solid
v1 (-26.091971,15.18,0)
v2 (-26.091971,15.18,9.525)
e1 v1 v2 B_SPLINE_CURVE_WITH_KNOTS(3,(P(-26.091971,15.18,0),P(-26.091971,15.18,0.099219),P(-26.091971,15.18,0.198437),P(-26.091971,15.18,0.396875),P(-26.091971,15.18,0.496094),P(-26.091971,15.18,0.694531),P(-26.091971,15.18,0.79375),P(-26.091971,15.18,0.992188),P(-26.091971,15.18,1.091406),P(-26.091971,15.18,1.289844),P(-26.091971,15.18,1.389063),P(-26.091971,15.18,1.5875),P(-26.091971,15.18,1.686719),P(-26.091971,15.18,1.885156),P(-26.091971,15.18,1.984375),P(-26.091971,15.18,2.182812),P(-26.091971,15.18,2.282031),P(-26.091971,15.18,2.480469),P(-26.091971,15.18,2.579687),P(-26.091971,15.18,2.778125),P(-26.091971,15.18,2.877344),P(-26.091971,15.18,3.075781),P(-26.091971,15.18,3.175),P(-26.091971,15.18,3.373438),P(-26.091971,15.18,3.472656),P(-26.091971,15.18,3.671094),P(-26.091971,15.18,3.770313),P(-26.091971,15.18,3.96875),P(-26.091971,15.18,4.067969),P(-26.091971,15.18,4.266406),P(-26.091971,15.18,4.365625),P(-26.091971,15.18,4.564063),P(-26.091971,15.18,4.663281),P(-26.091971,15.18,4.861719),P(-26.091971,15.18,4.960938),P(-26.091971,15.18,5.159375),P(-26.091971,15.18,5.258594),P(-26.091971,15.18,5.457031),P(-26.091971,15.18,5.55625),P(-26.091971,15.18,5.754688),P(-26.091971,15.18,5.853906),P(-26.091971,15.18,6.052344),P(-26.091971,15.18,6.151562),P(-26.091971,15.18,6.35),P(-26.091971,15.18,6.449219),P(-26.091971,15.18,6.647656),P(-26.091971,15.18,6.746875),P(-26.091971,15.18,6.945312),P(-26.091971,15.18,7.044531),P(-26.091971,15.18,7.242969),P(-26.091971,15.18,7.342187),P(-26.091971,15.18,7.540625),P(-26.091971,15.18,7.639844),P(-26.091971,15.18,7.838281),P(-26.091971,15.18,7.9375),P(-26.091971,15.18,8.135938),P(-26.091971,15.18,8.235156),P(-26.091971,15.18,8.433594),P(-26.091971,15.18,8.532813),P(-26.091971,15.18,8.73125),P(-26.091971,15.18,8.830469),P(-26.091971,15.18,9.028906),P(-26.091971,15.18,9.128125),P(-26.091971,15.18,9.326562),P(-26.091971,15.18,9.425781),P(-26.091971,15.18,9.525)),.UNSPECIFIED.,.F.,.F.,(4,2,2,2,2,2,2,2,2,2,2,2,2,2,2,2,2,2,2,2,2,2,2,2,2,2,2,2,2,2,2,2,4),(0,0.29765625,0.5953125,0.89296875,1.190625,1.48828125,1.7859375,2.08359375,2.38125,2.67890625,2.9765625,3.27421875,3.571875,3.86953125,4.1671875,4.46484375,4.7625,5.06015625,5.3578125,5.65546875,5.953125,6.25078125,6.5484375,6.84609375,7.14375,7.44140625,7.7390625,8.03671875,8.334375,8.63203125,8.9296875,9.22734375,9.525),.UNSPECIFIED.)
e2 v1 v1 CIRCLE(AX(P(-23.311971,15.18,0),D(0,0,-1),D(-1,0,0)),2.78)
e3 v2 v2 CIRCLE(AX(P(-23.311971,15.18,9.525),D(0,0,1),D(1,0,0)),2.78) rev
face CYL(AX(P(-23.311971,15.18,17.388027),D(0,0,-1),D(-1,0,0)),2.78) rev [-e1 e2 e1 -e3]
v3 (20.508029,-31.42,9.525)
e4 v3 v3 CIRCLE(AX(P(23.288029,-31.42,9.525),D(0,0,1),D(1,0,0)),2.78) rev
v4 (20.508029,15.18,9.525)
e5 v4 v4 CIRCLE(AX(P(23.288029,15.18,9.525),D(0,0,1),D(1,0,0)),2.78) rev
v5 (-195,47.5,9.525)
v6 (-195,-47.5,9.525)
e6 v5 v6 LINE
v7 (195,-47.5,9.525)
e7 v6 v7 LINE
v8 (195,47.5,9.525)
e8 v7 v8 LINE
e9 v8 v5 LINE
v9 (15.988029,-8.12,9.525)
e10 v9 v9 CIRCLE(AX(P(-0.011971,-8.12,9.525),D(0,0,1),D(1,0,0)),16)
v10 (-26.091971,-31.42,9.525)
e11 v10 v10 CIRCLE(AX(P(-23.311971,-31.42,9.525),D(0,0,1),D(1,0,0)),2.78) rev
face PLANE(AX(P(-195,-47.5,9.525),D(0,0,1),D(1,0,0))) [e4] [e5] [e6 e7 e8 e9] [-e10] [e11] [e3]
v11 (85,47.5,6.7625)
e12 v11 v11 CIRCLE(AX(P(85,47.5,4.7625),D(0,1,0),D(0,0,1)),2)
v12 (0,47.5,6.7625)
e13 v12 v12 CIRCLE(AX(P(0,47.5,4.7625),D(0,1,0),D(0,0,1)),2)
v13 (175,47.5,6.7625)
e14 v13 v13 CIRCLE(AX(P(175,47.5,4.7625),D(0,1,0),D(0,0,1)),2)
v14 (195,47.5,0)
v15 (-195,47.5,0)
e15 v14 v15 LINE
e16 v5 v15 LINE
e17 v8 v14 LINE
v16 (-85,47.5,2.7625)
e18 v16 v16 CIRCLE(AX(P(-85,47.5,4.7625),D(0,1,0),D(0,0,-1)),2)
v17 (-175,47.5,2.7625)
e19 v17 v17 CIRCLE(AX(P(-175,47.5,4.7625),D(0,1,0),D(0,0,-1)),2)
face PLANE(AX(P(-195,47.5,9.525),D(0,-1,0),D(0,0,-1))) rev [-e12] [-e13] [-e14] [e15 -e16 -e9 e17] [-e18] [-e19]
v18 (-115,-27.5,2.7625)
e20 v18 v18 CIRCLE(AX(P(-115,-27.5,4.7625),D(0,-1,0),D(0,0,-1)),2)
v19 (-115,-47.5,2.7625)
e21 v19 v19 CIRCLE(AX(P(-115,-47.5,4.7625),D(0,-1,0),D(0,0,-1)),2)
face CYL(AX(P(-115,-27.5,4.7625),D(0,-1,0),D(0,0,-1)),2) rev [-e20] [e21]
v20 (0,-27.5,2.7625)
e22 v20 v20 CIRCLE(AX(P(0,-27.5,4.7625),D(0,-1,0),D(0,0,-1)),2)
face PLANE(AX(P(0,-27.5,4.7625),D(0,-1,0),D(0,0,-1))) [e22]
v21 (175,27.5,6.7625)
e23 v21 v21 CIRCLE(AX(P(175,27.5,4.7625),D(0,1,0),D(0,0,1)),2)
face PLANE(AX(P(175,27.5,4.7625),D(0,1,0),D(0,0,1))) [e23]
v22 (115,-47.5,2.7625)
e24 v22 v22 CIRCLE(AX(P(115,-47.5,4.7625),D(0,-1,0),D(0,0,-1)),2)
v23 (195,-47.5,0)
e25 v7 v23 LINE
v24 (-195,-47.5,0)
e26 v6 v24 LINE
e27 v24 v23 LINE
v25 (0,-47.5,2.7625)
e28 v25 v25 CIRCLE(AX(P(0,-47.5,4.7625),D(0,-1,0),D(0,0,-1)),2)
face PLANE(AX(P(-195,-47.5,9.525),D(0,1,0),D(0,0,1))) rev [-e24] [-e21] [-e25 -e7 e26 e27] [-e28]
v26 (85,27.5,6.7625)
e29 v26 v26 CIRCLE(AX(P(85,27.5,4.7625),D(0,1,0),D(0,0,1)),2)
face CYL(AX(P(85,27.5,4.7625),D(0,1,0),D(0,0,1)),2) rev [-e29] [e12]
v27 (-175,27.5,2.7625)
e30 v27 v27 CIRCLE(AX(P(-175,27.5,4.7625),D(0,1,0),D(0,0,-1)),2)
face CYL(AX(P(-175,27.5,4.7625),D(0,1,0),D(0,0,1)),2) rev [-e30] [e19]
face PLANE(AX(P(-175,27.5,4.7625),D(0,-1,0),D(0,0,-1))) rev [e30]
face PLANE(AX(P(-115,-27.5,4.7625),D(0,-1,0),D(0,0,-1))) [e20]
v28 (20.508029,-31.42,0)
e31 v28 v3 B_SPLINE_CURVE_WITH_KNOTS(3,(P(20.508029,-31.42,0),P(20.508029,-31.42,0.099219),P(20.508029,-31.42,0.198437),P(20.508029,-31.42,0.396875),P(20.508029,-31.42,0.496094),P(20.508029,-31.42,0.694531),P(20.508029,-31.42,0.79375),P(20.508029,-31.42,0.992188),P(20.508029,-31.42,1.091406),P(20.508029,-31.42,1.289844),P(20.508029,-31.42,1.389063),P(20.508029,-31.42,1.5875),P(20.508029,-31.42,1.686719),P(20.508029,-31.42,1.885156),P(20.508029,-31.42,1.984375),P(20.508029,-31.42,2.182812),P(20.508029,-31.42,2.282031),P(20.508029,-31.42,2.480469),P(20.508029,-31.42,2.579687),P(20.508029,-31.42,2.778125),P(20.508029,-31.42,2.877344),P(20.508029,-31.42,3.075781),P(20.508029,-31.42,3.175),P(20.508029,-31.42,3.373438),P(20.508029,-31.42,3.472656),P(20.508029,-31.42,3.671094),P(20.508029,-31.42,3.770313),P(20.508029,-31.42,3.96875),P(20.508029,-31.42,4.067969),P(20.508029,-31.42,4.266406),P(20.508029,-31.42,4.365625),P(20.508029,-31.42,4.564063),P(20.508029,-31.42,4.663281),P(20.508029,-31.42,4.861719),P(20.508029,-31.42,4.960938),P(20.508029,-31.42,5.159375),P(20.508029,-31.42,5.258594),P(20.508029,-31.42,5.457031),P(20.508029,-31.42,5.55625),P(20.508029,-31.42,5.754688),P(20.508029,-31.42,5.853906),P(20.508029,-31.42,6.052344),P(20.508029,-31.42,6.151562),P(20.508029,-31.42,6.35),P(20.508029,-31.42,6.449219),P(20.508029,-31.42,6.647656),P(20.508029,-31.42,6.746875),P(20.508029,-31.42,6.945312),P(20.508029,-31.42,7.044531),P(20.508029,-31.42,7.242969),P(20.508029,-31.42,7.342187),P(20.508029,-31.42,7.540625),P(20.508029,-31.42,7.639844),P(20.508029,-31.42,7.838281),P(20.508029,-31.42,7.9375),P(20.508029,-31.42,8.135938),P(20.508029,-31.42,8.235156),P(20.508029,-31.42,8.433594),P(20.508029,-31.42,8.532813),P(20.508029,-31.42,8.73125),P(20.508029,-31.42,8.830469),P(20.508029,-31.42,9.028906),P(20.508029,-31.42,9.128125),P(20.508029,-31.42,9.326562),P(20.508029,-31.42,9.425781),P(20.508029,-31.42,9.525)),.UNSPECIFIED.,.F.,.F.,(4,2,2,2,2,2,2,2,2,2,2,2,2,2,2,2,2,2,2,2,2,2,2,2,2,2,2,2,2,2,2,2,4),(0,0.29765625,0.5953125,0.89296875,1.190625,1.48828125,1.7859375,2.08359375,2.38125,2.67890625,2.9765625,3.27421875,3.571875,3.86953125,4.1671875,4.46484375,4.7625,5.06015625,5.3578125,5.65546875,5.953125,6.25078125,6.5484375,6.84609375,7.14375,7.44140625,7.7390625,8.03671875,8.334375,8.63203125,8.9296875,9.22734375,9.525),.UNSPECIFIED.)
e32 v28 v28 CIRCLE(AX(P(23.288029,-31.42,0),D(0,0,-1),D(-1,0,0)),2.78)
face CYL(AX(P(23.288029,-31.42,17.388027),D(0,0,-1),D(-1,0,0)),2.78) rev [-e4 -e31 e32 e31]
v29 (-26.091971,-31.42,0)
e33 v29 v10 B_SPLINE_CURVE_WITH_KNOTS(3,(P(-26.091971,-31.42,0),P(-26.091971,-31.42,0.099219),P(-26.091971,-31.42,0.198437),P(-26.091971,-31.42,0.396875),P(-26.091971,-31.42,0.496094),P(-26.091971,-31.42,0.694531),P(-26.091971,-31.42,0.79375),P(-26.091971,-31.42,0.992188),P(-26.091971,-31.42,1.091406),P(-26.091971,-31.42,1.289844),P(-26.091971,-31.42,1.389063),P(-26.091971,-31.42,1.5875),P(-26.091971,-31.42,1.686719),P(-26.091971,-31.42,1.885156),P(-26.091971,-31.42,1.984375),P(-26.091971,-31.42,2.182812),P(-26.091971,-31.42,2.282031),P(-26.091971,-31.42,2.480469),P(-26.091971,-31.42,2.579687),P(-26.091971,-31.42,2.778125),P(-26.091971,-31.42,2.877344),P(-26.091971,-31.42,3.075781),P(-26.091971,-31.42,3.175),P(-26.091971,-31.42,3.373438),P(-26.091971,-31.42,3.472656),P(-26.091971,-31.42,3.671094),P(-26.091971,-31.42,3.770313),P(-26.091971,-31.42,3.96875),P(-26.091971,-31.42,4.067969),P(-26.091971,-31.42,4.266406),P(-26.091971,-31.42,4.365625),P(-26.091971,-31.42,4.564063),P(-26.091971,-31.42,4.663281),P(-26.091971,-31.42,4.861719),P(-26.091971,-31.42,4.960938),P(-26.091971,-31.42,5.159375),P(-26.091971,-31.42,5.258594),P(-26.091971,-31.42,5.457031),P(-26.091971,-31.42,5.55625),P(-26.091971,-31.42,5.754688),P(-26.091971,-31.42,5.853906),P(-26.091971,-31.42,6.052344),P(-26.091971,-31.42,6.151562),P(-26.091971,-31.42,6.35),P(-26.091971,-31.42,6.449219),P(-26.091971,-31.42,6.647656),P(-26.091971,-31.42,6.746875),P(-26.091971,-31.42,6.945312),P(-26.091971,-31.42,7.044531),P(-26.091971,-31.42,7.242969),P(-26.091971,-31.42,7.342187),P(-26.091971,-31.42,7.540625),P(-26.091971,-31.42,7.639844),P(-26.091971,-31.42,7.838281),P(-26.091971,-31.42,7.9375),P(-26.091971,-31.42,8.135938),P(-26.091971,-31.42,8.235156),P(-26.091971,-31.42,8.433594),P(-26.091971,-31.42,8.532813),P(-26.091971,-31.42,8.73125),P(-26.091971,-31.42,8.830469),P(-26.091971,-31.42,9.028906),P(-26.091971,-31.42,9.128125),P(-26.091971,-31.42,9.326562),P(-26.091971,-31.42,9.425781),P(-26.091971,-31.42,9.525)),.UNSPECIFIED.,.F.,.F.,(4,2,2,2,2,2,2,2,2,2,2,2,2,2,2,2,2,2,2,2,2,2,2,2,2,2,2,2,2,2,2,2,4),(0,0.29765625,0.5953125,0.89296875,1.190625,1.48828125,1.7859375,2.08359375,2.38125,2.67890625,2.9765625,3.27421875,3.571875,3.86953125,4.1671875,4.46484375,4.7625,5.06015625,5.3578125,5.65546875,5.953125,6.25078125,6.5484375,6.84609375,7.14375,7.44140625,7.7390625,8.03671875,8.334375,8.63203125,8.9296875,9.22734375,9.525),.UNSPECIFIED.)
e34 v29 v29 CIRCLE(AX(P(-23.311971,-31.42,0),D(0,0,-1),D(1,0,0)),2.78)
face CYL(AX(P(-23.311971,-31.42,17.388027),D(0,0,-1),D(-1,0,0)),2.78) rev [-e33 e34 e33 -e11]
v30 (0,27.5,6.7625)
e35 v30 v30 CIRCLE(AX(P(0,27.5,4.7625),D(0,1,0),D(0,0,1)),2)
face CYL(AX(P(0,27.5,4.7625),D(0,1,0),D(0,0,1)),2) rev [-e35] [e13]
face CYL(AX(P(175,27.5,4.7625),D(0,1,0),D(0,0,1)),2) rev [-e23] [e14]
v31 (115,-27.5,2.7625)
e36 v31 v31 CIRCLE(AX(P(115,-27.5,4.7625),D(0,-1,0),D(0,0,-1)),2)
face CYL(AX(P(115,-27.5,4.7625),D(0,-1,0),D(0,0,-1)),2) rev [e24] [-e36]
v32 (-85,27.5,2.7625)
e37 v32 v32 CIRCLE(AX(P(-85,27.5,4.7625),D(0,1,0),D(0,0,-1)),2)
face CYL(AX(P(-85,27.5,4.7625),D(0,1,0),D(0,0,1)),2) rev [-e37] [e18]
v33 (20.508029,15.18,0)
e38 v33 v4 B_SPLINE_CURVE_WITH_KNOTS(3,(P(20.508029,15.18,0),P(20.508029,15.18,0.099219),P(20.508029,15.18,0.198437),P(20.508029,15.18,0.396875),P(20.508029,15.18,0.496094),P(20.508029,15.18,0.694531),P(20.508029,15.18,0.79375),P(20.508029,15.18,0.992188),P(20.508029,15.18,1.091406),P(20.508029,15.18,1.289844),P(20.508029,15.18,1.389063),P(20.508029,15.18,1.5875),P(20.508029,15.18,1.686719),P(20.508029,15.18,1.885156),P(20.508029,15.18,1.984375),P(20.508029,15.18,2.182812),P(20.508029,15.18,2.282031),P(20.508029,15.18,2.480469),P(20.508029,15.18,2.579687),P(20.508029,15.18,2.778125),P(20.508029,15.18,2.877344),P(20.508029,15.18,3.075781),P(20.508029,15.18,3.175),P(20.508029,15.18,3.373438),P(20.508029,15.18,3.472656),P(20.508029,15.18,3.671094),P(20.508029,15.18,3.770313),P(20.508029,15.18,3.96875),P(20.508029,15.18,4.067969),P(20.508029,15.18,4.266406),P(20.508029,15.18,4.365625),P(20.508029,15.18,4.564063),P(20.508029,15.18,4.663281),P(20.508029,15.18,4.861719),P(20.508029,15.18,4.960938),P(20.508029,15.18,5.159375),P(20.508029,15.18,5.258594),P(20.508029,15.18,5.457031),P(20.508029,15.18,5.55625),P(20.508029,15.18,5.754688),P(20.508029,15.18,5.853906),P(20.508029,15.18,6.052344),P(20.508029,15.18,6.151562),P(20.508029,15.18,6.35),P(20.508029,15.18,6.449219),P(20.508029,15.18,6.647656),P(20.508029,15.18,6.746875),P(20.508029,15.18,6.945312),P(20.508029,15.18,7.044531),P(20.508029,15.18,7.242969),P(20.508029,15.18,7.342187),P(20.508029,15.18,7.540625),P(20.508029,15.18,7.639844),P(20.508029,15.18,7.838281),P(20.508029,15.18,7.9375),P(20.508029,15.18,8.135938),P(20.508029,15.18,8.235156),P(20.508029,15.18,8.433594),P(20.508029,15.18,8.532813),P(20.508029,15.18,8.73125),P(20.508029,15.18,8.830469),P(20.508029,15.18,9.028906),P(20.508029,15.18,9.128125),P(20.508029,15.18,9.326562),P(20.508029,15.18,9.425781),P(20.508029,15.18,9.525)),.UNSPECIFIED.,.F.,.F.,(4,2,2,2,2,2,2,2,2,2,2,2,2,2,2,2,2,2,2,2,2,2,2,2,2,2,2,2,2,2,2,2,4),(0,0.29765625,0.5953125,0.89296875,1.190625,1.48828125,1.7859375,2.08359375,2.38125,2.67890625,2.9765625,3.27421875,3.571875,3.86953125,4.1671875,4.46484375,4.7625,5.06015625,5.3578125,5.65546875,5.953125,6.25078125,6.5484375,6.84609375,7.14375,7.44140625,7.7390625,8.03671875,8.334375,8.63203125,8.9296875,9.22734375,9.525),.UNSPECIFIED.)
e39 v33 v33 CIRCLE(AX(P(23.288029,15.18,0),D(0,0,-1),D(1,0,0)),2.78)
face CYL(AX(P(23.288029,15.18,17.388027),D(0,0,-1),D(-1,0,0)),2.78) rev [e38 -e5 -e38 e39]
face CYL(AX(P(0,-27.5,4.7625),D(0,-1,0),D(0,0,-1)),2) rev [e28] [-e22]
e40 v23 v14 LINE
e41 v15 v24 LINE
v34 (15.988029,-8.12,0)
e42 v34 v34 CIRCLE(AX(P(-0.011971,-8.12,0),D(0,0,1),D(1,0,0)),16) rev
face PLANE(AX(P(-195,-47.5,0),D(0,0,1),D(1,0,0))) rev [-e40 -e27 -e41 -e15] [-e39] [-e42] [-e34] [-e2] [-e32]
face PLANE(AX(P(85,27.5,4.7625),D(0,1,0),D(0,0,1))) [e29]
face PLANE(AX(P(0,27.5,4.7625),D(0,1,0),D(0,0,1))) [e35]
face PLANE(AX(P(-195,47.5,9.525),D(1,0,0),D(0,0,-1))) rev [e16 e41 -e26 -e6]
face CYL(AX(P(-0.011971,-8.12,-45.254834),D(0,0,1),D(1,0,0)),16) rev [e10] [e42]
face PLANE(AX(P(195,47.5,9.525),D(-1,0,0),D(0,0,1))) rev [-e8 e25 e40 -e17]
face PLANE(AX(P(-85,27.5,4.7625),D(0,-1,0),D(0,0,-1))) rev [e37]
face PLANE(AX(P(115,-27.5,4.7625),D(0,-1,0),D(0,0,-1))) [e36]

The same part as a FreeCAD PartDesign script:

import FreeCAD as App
import Part
import Sketcher
from FreeCAD import Vector


def add_polygon(sketch, points):
    """Adds a closed chain of lines whose ends are joined by coincident constraints."""
    first, n = sketch.GeometryCount, len(points)
    for a, b in zip(points, points[1:] + points[:1]):
        sketch.addGeometry(Part.LineSegment(App.Vector(*a, 0), App.Vector(*b, 0)), False)
    for i in range(n):
        sketch.addConstraint(Sketcher.Constraint("Coincident", first + i, 2, first + (i + 1) % n, 1))

doc = App.newDocument("Part")
body = doc.addObject("PartDesign::Body", "Body")

sketch1 = body.newObject("Sketcher::SketchObject", "Sketch")
sketch1.AttachmentSupport = (doc.getObject("XY_Plane"), [""])
sketch1.MapMode = "FlatFace"
add_polygon(sketch1, [(-195, 48), (-195, -48), (195, -48), (195, 48)])
sketch1.addConstraint(Sketcher.Constraint("Vertical", 0))
sketch1.addConstraint(Sketcher.Constraint("Horizontal", 1))
sketch1.addConstraint(Sketcher.Constraint("Vertical", 2))
sketch1.addConstraint(Sketcher.Constraint("Horizontal", 3))
sketch1.addConstraint(Sketcher.Constraint("Symmetric", 0, 2, 2, 2, -1, 1))
sketch1.addConstraint(Sketcher.Constraint("DistanceX", 1, 1, 1, 2, 390.0))
sketch1.addConstraint(Sketcher.Constraint("DistanceY", 0, 2, 0, 1, 95.0))
pad1 = body.newObject("PartDesign::Pad", "Pad")
pad1.Profile = sketch1
pad1.Length = 9.525

sketch2 = body.newObject("Sketcher::SketchObject", "Sketch001")
sketch2.AttachmentSupport = (doc.getObject("XY_Plane"), [""])
sketch2.MapMode = "FlatFace"
sketch2.AttachmentOffset = App.Placement(Vector(0, 0, 9.525), App.Rotation())
sketch2.addGeometry(Part.Circle(Vector(0, -8, 0), Vector(0, 0, 1), 16), False)
sketch2.addConstraint(Sketcher.Constraint("Diameter", 0, 32.0))
sketch2.addConstraint(Sketcher.Constraint("DistanceY", 0, 3, -1, 1, 8.12))
sketch2.addConstraint(Sketcher.Constraint("DistanceX", 0, 3, -1, 1, 0.011971))
pocket1 = body.newObject("PartDesign::Pocket", "Pocket")
pocket1.Profile = sketch2
pocket1.Length = 9.525

sketch3 = body.newObject("Sketcher::SketchObject", "Sketch002")
sketch3.AttachmentSupport = (doc.getObject("XY_Plane"), [""])
sketch3.MapMode = "FlatFace"
sketch3.addGeometry(Part.Circle(Vector(-23.3, -31.4, 0), Vector(0, 0, 1), 2.8), False)
sketch3.addGeometry(Part.Circle(Vector(23.3, -31.4, 0), Vector(0, 0, 1), 2.8), False)
sketch3.addGeometry(Part.Circle(Vector(-23.3, 15.2, 0), Vector(0, 0, 1), 2.8), False)
sketch3.addGeometry(Part.Circle(Vector(23.3, 15.2, 0), Vector(0, 0, 1), 2.8), False)
sketch3.addConstraint(Sketcher.Constraint("Equal", 0, 1))
sketch3.addConstraint(Sketcher.Constraint("Equal", 1, 2))
sketch3.addConstraint(Sketcher.Constraint("Equal", 2, 3))
sketch3.addConstraint(Sketcher.Constraint("Horizontal", 0, 3, 1, 3))
sketch3.addConstraint(Sketcher.Constraint("Horizontal", 2, 3, 3, 3))
sketch3.addConstraint(Sketcher.Constraint("Vertical", 0, 3, 2, 3))
sketch3.addConstraint(Sketcher.Constraint("Vertical", 1, 3, 3, 3))
sketch3.addConstraint(Sketcher.Constraint("Diameter", 0, 5.56))
sketch3.addConstraint(Sketcher.Constraint("DistanceX", 0, 3, 1, 3, 46.6))
sketch3.addConstraint(Sketcher.Constraint("DistanceY", 0, 3, 2, 3, 46.6))
sketch3.addConstraint(Sketcher.Constraint("DistanceY", 0, 3, -1, 1, 31.42))
sketch3.addConstraint(Sketcher.Constraint("DistanceX", 0, 3, -1, 1, 23.311971))
pocket2 = body.newObject("PartDesign::Pocket", "Pocket001")
pocket2.Profile = sketch3
pocket2.Length = 9.525
pocket2.Reversed = True

sketch4 = body.newObject("Sketcher::SketchObject", "Sketch003")
sketch4.AttachmentSupport = (doc.getObject("XZ_Plane"), [""])
sketch4.MapMode = "FlatFace"
sketch4.AttachmentOffset = App.Placement(Vector(0, 0, -47.5), App.Rotation())
sketch4.addGeometry(Part.Circle(Vector(175, 4.8, 0), Vector(0, 0, 1), 2), False)
sketch4.addGeometry(Part.Circle(Vector(85, 4.8, 0), Vector(0, 0, 1), 2), False)
sketch4.addGeometry(Part.Circle(Vector(0, 4.8, 0), Vector(0, 0, 1), 2), False)
sketch4.addGeometry(Part.Circle(Vector(-175, 4.8, 0), Vector(0, 0, 1), 2), False)
sketch4.addGeometry(Part.Circle(Vector(-85, 4.8, 0), Vector(0, 0, 1), 2), False)
sketch4.addConstraint(Sketcher.Constraint("Equal", 0, 1))
sketch4.addConstraint(Sketcher.Constraint("Equal", 1, 2))
sketch4.addConstraint(Sketcher.Constraint("Equal", 2, 3))
sketch4.addConstraint(Sketcher.Constraint("Equal", 3, 4))
sketch4.addConstraint(Sketcher.Constraint("Symmetric", 0, 3, 3, 3, -2))
sketch4.addConstraint(Sketcher.Constraint("Symmetric", 1, 3, 4, 3, -2))
sketch4.addConstraint(Sketcher.Constraint("PointOnObject", 2, 3, -2))
sketch4.addConstraint(Sketcher.Constraint("Horizontal", 0, 3, 1, 3))
sketch4.addConstraint(Sketcher.Constraint("Horizontal", 1, 3, 2, 3))
sketch4.addConstraint(Sketcher.Constraint("Diameter", 0, 4.0))
sketch4.addConstraint(Sketcher.Constraint("DistanceX", -1, 1, 0, 3, 175.0))
sketch4.addConstraint(Sketcher.Constraint("DistanceX", -1, 1, 1, 3, 85.0))
sketch4.addConstraint(Sketcher.Constraint("DistanceY", -1, 1, 0, 3, 4.7625))
pocket3 = body.newObject("PartDesign::Pocket", "Pocket002")
pocket3.Profile = sketch4
pocket3.Length = 20
pocket3.Reversed = True

sketch5 = body.newObject("Sketcher::SketchObject", "Sketch004")
sketch5.AttachmentSupport = (doc.getObject("XZ_Plane"), [""])
sketch5.MapMode = "FlatFace"
sketch5.AttachmentOffset = App.Placement(Vector(0, 0, 27.5), App.Rotation())
sketch5.addGeometry(Part.Circle(Vector(-115, 4.8, 0), Vector(0, 0, 1), 2), False)
sketch5.addGeometry(Part.Circle(Vector(0, 4.8, 0), Vector(0, 0, 1), 2), False)
sketch5.addGeometry(Part.Circle(Vector(115, 4.8, 0), Vector(0, 0, 1), 2), False)
sketch5.addConstraint(Sketcher.Constraint("Equal", 0, 1))
sketch5.addConstraint(Sketcher.Constraint("Equal", 1, 2))
sketch5.addConstraint(Sketcher.Constraint("Symmetric", 0, 3, 2, 3, -2))
sketch5.addConstraint(Sketcher.Constraint("PointOnObject", 1, 3, -2))
sketch5.addConstraint(Sketcher.Constraint("Horizontal", 0, 3, 1, 3))
sketch5.addConstraint(Sketcher.Constraint("Diameter", 0, 4.0))
sketch5.addConstraint(Sketcher.Constraint("DistanceX", 0, 3, -1, 1, 115.0))
sketch5.addConstraint(Sketcher.Constraint("DistanceY", -1, 1, 0, 3, 4.7625))
pocket4 = body.newObject("PartDesign::Pocket", "Pocket003")
pocket4.Profile = sketch5
pocket4.Length = 20
pocket4.Reversed = True

doc.recompute()
